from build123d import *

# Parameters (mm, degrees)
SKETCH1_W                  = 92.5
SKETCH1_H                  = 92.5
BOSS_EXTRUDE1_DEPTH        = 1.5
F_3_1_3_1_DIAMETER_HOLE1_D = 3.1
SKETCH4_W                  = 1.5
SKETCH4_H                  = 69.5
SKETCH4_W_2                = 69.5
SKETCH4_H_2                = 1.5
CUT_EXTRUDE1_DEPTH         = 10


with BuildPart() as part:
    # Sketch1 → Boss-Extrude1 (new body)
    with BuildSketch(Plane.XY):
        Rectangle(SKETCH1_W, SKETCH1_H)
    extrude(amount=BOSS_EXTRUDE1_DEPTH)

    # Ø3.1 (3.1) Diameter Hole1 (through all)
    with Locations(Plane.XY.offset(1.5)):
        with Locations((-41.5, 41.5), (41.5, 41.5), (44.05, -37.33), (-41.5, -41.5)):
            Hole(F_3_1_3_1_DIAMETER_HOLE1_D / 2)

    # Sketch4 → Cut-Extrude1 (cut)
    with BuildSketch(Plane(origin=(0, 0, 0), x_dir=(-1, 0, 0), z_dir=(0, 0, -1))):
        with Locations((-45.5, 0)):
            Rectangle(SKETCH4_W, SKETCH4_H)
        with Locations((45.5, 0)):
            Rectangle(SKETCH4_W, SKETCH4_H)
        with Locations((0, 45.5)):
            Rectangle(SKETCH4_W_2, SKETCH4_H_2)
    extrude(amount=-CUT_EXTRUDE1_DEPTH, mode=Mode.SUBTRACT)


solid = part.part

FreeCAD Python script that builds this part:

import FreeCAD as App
import Part
import Sketcher

V = App.Vector
Q = App.Units.Quantity

doc = App.newDocument("Part")
body = doc.addObject("PartDesign::Body", "Body")

# Sketch on XY plane
sketch1 = body.newObject("Sketcher::SketchObject", "Sketch")
sketch1.AttachmentSupport = (doc.getObject("XY_Plane"), [""])
sketch1.MapMode = "FlatFace"
sketch1.addGeometry(Part.LineSegment(V(-46.25, 46.25, 0), V(-46.25, -46.25, 0)), False)
sketch1.addGeometry(Part.LineSegment(V(-46.25, -46.25, 0), V(46.25, -46.25, 0)), False)
sketch1.addGeometry(Part.LineSegment(V(46.25, -46.25, 0), V(46.25, 46.25, 0)), False)
sketch1.addGeometry(Part.LineSegment(V(46.25, 46.25, 0), V(-46.25, 46.25, 0)), False)
sketch1.addConstraint(Sketcher.Constraint("Coincident", 0, 2, 1, 1))
sketch1.addConstraint(Sketcher.Constraint("Coincident", 1, 2, 2, 1))
sketch1.addConstraint(Sketcher.Constraint("Coincident", 2, 2, 3, 1))
sketch1.addConstraint(Sketcher.Constraint("Coincident", 3, 2, 0, 1))
sketch1.addConstraint(Sketcher.Constraint("Vertical", 0))
sketch1.addConstraint(Sketcher.Constraint("Horizontal", 1))
sketch1.addConstraint(Sketcher.Constraint("Vertical", 2))
sketch1.addConstraint(Sketcher.Constraint("Horizontal", 3))
sketch1.addConstraint(Sketcher.Constraint("Symmetric", 0, 2, 2, 2, -1, 1))
sketch1.addConstraint(Sketcher.Constraint("Equal", 3, 0))
sketch1.addConstraint(Sketcher.Constraint("DistanceX", 1, 1, 1, 2, Q("92.5 mm")))
pad1 = body.newObject("PartDesign::Pad", "Pad")
pad1.Profile = sketch1
pad1.Length = 1.5

# Sketch on XY plane
sketch2 = body.newObject("Sketcher::SketchObject", "Sketch001")
sketch2.AttachmentSupport = (doc.getObject("XY_Plane"), [""])
sketch2.MapMode = "FlatFace"
sketch2.AttachmentOffset = App.Placement(V(0, 0, 1.5), App.Rotation())
sketch2.addGeometry(Part.Circle(V(-41.5, 41.5, 0), V(0, 0, 1), 1.55), False)
sketch2.addGeometry(Part.Circle(V(41.5, 41.5, 0), V(0, 0, 1), 1.55), False)
sketch2.addGeometry(Part.Circle(V(44.05, -37.33, 0), V(0, 0, 1), 1.55), False)
sketch2.addGeometry(Part.Circle(V(-41.5, -41.5, 0), V(0, 0, 1), 1.55), False)
sketch2.addConstraint(Sketcher.Constraint("Equal", 0, 1))
sketch2.addConstraint(Sketcher.Constraint("Equal", 1, 2))
sketch2.addConstraint(Sketcher.Constraint("Equal", 2, 3))
sketch2.addConstraint(Sketcher.Constraint("Symmetric", 1, 3, 3, 3, -1, 1))
sketch2.addConstraint(Sketcher.Constraint("Symmetric", 0, 3, 1, 3, -2))
sketch2.addConstraint(Sketcher.Constraint("Diameter", 0, Q("3.1 mm")))
sketch2.addConstraint(Sketcher.Constraint("DistanceX", 0, 3, 1, 3, Q("83 mm")))
sketch2.addConstraint(Sketcher.Constraint("DistanceY", 3, 3, 0, 3, Q("83 mm")))
sketch2.addConstraint(Sketcher.Constraint("DistanceX", -1, 1, 2, 3, Q("44.05 mm")))
sketch2.addConstraint(Sketcher.Constraint("DistanceY", 2, 3, -1, 1, Q("37.33 mm")))
doc.recompute()
hole = body.newObject("PartDesign::Hole", "Hole")
hole.Profile = sketch2
hole.ThreadType = "None"
hole.Diameter = 3.1
hole.DepthType = "ThroughAll"

# Sketch on XY plane
sketch3 = body.newObject("Sketcher::SketchObject", "Sketch002")
sketch3.AttachmentSupport = (doc.getObject("XY_Plane"), [""])
sketch3.MapMode = "FlatFace"
sketch3.addGeometry(Part.LineSegment(V(46.25, 34.75, 0), V(46.25, -34.75, 0)), False)
sketch3.addGeometry(Part.LineSegment(V(46.25, -34.75, 0), V(44.75, -34.75, 0)), False)
sketch3.addGeometry(Part.LineSegment(V(44.75, -34.75, 0), V(44.75, 34.75, 0)), False)
sketch3.addGeometry(Part.LineSegment(V(44.75, 34.75, 0), V(46.25, 34.75, 0)), False)
sketch3.addGeometry(Part.LineSegment(V(-44.75, 34.75, 0), V(-44.75, -34.75, 0)), False)
sketch3.addGeometry(Part.LineSegment(V(-44.75, -34.75, 0), V(-46.25, -34.75, 0)), False)
sketch3.addGeometry(Part.LineSegment(V(-46.25, -34.75, 0), V(-46.25, 34.75, 0)), False)
sketch3.addGeometry(Part.LineSegment(V(-46.25, 34.75, 0), V(-44.75, 34.75, 0)), False)
sketch3.addGeometry(Part.LineSegment(V(34.75, 46.25, 0), V(34.75, 44.75, 0)), False)
sketch3.addGeometry(Part.LineSegment(V(34.75, 44.75, 0), V(-34.75, 44.75, 0)), False)
sketch3.addGeometry(Part.LineSegment(V(-34.75, 44.75, 0), V(-34.75, 46.25, 0)), False)
sketch3.addGeometry(Part.LineSegment(V(-34.75, 46.25, 0), V(34.75, 46.25, 0)), False)
sketch3.addConstraint(Sketcher.Constraint("Coincident", 0, 2, 1, 1))
sketch3.addConstraint(Sketcher.Constraint("Coincident", 1, 2, 2, 1))
sketch3.addConstraint(Sketcher.Constraint("Coincident", 2, 2, 3, 1))
sketch3.addConstraint(Sketcher.Constraint("Coincident", 3, 2, 0, 1))
sketch3.addConstraint(Sketcher.Constraint("Coincident", 4, 2, 5, 1))
sketch3.addConstraint(Sketcher.Constraint("Coincident", 5, 2, 6, 1))
sketch3.addConstraint(Sketcher.Constraint("Coincident", 6, 2, 7, 1))
sketch3.addConstraint(Sketcher.Constraint("Coincident", 7, 2, 4, 1))
sketch3.addConstraint(Sketcher.Constraint("Coincident", 8, 2, 9, 1))
sketch3.addConstraint(Sketcher.Constraint("Coincident", 9, 2, 10, 1))
sketch3.addConstraint(Sketcher.Constraint("Coincident", 10, 2, 11, 1))
sketch3.addConstraint(Sketcher.Constraint("Coincident", 11, 2, 8, 1))
sketch3.addConstraint(Sketcher.Constraint("Vertical", 0))
sketch3.addConstraint(Sketcher.Constraint("Horizontal", 1))
sketch3.addConstraint(Sketcher.Constraint("Vertical", 2))
sketch3.addConstraint(Sketcher.Constraint("Horizontal", 3))
sketch3.addConstraint(Sketcher.Constraint("Vertical", 4))
sketch3.addConstraint(Sketcher.Constraint("Horizontal", 5))
sketch3.addConstraint(Sketcher.Constraint("Vertical", 6))
sketch3.addConstraint(Sketcher.Constraint("Horizontal", 7))
sketch3.addConstraint(Sketcher.Constraint("Vertical", 8))
sketch3.addConstraint(Sketcher.Constraint("Horizontal", 9))
sketch3.addConstraint(Sketcher.Constraint("Vertical", 10))
sketch3.addConstraint(Sketcher.Constraint("Horizontal", 11))
sketch3.addConstraint(Sketcher.Constraint("Symmetric", 2, 2, 4, 2, -1, 1))
sketch3.addConstraint(Sketcher.Constraint("Symmetric", 0, 2, 6, 2, -1, 1))
sketch3.addConstraint(Sketcher.Constraint("Horizontal", 1, 2, 4, 2))
sketch3.addConstraint(Sketcher.Constraint("Equal", 11, 0))
sketch3.addConstraint(Sketcher.Constraint("Equal", 7, 8))
sketch3.addConstraint(Sketcher.Constraint("DistanceX", 1, 2, 1, 1, Q("1.5 mm")))
sketch3.addConstraint(Sketcher.Constraint("DistanceX", 9, 2, 9, 1, Q("69.5 mm")))
sketch3.addConstraint(Sketcher.Constraint("DistanceX", 4, 2, 0, 2, Q("91 mm")))
sketch3.addConstraint(Sketcher.Constraint("DistanceX", 8, 2, 2, 2, Q("10 mm")))
sketch3.addConstraint(Sketcher.Constraint("DistanceY", 2, 2, 8, 2, Q("10 mm")))
pocket1 = body.newObject("PartDesign::Pocket", "Pocket")
pocket1.Profile = sketch3
pocket1.Length = 10
pocket1.Reversed = True

doc.recompute()
